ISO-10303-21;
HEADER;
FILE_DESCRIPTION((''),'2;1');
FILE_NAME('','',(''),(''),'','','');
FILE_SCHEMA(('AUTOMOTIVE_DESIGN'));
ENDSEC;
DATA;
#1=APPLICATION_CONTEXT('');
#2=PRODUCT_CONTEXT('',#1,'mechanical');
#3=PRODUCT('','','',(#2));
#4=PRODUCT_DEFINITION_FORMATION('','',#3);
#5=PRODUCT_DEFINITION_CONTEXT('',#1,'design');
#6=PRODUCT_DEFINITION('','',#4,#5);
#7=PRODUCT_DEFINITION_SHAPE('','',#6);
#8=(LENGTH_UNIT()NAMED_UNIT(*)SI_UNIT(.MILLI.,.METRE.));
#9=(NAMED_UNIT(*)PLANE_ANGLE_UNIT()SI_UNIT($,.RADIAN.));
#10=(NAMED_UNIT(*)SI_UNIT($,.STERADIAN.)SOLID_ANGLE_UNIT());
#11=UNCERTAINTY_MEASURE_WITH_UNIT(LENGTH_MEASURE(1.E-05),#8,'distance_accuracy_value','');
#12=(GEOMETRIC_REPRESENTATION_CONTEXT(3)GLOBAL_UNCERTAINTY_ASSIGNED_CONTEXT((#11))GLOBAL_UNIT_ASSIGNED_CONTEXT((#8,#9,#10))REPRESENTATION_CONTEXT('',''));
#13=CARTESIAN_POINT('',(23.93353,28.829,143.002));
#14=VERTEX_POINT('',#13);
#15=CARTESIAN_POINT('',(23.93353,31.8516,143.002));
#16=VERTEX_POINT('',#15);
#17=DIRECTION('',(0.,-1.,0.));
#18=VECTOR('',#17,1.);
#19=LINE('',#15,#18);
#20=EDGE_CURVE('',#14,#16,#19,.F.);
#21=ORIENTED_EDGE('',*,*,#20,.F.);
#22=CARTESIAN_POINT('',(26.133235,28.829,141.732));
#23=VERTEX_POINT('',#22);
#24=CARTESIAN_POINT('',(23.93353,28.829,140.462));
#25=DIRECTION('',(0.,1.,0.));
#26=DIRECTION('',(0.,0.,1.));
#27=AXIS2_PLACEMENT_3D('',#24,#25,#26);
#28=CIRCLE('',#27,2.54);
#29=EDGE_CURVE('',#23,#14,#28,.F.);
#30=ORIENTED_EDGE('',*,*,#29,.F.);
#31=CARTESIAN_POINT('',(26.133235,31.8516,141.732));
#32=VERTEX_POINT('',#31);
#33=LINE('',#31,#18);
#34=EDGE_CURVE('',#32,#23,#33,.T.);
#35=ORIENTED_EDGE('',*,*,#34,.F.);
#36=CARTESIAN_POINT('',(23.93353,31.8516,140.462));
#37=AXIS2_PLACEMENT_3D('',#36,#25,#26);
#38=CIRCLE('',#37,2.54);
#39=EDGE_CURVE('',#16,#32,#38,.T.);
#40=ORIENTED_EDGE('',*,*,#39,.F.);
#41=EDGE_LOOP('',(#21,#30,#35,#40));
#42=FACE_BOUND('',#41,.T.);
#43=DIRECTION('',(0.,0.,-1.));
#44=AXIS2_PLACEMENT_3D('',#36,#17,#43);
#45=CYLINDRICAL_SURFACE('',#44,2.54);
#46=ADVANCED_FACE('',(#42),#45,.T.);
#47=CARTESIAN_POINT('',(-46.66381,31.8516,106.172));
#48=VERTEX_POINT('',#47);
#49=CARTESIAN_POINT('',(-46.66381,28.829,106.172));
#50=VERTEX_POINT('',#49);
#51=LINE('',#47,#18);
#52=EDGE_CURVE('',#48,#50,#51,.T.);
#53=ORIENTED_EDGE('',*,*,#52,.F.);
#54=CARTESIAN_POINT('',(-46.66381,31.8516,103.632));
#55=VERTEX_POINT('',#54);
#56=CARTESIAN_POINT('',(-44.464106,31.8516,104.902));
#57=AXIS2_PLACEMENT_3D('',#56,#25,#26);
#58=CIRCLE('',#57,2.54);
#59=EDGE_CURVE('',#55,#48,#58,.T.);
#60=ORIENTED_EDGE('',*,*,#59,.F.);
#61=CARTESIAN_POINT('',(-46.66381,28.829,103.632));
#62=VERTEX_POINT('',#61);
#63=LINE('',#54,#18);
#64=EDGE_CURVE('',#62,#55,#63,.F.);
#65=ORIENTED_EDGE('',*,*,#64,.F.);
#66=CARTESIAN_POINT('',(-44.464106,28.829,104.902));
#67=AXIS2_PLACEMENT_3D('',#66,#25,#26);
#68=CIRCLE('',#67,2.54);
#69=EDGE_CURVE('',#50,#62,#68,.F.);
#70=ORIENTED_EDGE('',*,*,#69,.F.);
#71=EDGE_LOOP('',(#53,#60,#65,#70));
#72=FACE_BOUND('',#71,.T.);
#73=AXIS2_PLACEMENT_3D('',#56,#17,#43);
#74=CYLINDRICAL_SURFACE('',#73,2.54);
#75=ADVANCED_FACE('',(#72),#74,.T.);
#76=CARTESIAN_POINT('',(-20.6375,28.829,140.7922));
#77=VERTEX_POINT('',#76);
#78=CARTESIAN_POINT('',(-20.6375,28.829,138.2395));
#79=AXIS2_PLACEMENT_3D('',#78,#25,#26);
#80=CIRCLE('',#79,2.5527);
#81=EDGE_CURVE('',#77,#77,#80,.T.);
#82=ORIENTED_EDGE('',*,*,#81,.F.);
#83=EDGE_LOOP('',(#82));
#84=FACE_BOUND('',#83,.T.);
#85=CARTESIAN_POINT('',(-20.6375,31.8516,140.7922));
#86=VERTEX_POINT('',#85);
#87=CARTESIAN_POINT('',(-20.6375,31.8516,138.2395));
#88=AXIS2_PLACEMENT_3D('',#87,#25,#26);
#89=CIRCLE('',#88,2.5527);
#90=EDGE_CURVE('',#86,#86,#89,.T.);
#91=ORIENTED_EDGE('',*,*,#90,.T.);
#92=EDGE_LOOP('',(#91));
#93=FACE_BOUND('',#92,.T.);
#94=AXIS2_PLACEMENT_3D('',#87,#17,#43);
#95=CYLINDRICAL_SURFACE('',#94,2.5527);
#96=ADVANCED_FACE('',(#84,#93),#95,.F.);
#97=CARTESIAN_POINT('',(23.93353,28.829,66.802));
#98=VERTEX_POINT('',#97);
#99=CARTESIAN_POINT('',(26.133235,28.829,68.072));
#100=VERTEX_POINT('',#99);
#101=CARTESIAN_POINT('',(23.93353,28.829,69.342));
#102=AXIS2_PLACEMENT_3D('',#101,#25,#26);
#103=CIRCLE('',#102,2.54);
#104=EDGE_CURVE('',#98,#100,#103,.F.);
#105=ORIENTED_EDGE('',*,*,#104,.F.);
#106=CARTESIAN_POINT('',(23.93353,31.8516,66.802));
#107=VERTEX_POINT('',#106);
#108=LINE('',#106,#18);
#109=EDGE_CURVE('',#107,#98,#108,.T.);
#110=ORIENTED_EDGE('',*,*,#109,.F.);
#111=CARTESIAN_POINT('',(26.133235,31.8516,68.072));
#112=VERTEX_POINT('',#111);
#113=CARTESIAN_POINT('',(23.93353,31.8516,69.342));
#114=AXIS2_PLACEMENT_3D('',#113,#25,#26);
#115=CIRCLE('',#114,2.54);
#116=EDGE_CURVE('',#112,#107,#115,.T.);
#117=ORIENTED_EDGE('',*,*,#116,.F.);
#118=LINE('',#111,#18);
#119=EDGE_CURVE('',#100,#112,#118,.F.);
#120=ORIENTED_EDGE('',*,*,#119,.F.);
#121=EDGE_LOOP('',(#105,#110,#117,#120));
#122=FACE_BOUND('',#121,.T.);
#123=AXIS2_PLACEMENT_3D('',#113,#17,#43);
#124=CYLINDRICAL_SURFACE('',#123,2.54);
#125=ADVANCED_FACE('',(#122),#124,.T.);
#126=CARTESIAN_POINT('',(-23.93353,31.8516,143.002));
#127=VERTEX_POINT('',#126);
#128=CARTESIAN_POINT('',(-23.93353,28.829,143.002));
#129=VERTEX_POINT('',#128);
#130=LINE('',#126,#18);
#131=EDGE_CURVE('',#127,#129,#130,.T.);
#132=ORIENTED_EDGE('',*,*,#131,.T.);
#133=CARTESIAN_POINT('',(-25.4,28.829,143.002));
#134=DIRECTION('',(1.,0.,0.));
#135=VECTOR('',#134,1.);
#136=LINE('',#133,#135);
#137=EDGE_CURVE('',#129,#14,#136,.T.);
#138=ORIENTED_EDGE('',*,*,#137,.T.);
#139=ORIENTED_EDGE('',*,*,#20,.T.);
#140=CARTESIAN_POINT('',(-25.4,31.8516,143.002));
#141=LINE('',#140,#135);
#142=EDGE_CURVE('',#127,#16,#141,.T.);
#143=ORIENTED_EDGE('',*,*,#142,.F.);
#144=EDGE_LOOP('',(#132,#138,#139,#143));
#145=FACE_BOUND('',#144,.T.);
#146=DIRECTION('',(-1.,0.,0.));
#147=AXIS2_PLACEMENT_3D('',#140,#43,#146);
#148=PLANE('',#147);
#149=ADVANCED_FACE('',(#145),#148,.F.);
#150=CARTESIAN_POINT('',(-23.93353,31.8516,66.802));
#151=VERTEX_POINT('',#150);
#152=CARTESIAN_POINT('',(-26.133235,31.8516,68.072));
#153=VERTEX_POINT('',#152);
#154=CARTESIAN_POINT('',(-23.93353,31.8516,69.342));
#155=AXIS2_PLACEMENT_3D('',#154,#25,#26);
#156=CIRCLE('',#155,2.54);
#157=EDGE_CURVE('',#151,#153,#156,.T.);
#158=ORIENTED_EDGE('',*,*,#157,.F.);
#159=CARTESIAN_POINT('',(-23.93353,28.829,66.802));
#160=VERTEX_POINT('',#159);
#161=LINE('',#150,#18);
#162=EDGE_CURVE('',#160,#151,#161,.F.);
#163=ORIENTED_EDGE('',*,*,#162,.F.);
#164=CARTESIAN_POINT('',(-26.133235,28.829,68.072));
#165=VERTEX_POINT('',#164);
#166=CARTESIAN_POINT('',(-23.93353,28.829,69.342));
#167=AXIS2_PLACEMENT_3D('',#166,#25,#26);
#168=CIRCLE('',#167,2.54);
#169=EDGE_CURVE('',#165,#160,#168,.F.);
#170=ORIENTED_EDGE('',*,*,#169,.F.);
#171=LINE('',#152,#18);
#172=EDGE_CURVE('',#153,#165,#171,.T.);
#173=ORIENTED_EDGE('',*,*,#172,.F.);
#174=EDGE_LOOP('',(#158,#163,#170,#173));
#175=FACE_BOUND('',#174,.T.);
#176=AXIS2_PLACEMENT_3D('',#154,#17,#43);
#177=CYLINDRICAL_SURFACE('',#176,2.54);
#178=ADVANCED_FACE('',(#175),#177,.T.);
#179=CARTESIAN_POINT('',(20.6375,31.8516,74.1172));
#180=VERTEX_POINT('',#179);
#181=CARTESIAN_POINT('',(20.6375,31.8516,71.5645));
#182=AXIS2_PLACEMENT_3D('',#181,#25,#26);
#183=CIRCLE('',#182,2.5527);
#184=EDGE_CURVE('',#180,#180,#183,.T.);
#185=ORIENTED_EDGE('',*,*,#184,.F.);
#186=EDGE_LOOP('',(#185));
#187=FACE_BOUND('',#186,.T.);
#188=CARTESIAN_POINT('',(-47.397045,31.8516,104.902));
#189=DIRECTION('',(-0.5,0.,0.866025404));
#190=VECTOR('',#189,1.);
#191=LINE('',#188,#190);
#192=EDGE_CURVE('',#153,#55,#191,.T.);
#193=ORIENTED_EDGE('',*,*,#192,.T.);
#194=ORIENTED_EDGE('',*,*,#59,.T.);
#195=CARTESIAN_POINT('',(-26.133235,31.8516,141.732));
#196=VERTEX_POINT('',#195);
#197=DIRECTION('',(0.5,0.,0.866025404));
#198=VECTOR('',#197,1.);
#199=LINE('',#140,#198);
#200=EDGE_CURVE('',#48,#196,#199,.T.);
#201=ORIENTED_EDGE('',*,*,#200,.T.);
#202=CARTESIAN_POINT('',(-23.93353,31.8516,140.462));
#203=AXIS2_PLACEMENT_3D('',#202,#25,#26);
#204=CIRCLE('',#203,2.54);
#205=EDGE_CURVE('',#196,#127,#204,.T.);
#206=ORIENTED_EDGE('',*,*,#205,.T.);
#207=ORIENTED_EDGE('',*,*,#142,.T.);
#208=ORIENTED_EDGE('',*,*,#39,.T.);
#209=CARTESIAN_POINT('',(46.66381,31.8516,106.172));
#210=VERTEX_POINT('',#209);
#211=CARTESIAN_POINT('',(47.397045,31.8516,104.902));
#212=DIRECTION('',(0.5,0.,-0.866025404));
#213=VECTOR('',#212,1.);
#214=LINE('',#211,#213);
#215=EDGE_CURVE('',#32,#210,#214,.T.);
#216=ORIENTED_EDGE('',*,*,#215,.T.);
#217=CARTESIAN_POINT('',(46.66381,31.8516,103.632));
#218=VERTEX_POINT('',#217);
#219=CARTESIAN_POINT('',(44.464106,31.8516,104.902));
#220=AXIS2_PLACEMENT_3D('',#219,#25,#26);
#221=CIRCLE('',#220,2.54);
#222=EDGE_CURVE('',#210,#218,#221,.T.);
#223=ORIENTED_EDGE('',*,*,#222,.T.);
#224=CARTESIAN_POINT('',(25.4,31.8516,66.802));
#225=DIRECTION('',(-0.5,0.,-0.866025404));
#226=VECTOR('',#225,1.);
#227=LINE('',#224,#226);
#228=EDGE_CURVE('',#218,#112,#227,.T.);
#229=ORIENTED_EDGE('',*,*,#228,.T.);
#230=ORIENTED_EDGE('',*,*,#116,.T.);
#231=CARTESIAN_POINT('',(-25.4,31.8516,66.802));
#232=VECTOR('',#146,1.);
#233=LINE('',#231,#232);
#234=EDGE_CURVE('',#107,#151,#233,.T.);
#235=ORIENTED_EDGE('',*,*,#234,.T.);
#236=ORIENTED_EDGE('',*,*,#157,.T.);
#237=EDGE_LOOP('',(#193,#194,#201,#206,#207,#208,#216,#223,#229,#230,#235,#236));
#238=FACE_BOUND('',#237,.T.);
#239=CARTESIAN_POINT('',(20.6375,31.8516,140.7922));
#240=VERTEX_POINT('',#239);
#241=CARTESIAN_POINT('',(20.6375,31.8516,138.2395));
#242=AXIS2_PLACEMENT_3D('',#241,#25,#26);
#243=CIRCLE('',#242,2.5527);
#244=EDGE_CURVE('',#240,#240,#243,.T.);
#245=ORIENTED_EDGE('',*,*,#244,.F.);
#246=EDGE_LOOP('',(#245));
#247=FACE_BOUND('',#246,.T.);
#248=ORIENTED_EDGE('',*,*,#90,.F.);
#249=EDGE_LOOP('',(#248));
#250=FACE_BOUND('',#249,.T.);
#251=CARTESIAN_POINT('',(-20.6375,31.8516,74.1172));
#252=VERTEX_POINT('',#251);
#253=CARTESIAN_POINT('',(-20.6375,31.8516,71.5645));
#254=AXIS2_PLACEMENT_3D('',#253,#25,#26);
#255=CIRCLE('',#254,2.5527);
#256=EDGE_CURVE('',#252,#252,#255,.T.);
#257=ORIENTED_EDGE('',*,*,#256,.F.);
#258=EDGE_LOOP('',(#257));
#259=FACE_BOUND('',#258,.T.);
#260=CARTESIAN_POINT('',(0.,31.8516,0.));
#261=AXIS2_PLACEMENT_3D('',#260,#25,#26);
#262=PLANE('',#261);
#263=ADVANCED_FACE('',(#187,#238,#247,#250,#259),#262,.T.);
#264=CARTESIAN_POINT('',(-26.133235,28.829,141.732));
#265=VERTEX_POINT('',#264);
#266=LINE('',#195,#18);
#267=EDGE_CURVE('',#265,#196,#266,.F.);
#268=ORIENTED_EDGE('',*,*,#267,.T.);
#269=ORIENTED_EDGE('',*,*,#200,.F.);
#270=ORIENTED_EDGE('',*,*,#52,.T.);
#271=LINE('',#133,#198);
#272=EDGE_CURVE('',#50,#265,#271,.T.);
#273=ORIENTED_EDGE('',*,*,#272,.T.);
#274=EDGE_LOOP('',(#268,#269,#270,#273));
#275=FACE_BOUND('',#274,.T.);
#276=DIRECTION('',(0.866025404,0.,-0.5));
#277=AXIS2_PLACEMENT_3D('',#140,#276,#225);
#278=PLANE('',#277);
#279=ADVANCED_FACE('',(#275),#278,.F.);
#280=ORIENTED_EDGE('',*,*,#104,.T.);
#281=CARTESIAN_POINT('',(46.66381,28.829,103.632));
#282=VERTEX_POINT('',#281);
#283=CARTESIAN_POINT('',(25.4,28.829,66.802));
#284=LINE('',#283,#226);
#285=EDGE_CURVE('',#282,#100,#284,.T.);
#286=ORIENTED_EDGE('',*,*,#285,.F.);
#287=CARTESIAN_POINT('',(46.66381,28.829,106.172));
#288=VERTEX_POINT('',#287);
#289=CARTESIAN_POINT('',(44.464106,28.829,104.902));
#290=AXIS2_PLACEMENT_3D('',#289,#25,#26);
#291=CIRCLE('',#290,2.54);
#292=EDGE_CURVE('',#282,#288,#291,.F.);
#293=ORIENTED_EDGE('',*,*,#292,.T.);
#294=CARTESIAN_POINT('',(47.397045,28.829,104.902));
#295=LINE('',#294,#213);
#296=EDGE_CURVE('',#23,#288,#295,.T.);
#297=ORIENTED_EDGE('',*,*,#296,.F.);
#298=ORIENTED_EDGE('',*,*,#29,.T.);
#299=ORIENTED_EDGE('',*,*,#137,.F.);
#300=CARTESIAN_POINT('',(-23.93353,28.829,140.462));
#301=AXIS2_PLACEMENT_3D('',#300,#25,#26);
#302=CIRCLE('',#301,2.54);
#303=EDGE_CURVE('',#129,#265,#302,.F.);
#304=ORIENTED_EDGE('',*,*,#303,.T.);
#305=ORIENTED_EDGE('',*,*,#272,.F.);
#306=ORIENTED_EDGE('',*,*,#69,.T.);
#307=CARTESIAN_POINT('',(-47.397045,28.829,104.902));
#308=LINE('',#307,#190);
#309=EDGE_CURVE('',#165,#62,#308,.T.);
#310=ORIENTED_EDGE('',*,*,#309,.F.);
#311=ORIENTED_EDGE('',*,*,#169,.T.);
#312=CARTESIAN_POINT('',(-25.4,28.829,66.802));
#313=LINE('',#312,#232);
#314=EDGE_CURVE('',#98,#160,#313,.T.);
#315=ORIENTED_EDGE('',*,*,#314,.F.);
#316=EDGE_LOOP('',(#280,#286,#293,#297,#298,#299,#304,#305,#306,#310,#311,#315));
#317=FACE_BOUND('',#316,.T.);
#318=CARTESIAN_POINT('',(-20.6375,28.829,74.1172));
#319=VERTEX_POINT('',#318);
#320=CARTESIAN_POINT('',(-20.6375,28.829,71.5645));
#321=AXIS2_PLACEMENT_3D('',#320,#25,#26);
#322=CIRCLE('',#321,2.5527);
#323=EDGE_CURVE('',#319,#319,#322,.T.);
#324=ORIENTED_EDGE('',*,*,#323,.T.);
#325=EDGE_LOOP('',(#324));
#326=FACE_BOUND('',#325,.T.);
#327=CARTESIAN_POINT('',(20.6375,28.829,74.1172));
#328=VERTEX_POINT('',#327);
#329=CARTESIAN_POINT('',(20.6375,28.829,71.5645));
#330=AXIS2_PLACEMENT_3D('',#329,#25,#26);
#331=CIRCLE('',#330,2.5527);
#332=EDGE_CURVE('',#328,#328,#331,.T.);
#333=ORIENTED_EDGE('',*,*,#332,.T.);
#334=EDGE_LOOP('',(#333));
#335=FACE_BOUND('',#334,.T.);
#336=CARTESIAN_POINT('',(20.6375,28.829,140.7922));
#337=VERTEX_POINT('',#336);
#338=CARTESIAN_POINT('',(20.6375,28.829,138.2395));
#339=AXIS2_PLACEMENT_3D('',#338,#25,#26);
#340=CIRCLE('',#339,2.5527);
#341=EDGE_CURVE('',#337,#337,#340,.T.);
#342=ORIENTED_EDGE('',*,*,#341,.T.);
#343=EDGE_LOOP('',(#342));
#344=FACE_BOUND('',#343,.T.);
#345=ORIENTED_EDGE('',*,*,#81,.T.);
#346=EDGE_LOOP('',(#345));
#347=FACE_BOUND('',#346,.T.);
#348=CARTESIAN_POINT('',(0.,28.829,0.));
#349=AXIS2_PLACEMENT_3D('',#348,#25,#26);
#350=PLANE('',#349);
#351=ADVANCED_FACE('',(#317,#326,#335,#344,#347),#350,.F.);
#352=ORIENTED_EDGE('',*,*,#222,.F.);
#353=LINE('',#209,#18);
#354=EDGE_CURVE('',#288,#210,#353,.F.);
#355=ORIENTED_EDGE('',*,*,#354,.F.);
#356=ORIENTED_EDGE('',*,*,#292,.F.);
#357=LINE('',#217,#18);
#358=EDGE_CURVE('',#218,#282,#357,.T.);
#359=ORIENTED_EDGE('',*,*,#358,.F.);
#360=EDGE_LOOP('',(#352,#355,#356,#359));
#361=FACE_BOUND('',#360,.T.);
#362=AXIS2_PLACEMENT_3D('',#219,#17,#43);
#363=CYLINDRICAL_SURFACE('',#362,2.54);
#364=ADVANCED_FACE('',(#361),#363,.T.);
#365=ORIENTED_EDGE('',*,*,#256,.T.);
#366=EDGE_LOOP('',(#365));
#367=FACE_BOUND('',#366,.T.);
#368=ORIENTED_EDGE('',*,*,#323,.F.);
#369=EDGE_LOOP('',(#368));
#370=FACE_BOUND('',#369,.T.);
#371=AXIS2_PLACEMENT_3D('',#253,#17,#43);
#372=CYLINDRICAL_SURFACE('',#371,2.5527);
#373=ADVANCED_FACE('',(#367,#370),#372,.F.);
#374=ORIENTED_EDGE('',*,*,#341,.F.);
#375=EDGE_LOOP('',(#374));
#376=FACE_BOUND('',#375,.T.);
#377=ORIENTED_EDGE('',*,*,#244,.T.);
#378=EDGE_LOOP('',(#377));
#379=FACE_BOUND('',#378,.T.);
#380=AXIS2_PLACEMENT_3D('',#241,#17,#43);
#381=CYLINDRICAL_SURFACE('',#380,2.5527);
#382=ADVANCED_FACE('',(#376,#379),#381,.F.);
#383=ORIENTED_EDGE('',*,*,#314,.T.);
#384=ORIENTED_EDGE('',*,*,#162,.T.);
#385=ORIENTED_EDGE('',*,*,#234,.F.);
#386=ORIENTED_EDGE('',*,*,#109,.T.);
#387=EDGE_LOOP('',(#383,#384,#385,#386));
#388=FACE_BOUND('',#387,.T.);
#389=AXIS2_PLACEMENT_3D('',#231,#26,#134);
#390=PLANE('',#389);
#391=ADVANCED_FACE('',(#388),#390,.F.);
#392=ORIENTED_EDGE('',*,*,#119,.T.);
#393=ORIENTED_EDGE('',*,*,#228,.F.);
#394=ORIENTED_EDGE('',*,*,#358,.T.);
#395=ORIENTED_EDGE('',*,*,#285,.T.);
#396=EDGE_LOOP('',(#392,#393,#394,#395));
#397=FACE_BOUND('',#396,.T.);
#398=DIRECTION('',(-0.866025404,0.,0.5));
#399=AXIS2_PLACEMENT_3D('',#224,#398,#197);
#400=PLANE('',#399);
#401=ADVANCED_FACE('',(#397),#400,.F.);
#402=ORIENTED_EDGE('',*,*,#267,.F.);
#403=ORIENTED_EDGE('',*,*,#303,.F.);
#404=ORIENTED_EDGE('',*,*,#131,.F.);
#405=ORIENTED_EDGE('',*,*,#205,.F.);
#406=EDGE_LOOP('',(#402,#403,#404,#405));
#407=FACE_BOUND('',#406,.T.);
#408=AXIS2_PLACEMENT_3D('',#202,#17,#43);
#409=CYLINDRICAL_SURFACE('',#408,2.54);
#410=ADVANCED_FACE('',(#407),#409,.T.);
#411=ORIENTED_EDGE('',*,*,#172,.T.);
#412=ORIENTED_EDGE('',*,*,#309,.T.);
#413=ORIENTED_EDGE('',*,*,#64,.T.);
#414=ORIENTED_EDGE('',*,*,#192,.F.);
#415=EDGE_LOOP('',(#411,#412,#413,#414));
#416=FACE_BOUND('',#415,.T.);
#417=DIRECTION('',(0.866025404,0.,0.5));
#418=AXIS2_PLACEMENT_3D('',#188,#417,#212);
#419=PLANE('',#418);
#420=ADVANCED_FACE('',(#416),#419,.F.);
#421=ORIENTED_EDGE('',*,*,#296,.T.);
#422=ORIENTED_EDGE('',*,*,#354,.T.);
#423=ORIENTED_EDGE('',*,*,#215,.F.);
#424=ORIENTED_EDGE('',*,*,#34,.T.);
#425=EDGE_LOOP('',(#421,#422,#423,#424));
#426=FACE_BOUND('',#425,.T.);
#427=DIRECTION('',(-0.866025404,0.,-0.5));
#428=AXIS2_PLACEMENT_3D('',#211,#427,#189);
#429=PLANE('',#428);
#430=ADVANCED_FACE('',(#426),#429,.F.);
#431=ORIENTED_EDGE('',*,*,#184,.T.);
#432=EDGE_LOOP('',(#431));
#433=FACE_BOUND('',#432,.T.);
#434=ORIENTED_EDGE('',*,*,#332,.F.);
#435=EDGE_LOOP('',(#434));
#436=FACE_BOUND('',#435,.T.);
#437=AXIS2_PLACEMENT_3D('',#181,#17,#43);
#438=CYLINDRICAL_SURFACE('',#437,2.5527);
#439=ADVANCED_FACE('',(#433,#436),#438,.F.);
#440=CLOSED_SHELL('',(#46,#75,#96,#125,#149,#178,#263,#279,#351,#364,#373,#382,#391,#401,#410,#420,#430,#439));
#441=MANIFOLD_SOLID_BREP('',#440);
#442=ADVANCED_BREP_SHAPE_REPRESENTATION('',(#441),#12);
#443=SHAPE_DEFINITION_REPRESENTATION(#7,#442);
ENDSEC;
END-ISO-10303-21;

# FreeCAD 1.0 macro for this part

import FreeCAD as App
import Part
import Sketcher
from FreeCAD import Vector
Q = App.Units.Quantity


def edges_at(feature, points):
    """Names of the edges that pass closest to the given points."""
    edges = feature.Shape.Edges
    near = lambda p: min(range(len(edges)), key=lambda i: edges[i].distToShape(Part.Vertex(*p))[0])
    return sorted({f"Edge{near(p) + 1}" for p in points})


def add_polygon(sketch, points):
    """Adds a closed chain of lines whose ends are joined by coincident constraints."""
    first, n = sketch.GeometryCount, len(points)
    for a, b in zip(points, points[1:] + points[:1]):
        sketch.addGeometry(Part.LineSegment(App.Vector(*a, 0), App.Vector(*b, 0)), False)
    for i in range(n):
        sketch.addConstraint(Sketcher.Constraint("Coincident", first + i, 2, first + (i + 1) % n, 1))

doc = App.newDocument("Part")
body = doc.addObject("PartDesign::Body", "Body")

# Sketch on XZ plane
sketch1 = body.newObject("Sketcher::SketchObject", "Sketch")
sketch1.AttachmentSupport = (doc.getObject("XZ_Plane"), [""])
sketch1.MapMode = "FlatFace"
sketch1.AttachmentOffset = App.Placement(Vector(0, 0, -1.135 * 25.4), App.Rotation())
add_polygon(sketch1, [(25.4, 66.802), (-25.4, 66.802), (-47.397045, 104.902), (-25.4, 143.002), (25.4, 143.002), (47.397045, 104.902)])  # lines 0-5
sketch1.addGeometry(Part.Circle(Vector(20.6375, 138.2395, 0), Vector(0, 0, 1), 2.5527), False)  # 6
sketch1.addGeometry(Part.Circle(Vector(-20.6375, 138.2395, 0), Vector(0, 0, 1), 2.5527), False)  # 7
sketch1.addGeometry(Part.Circle(Vector(20.6375, 71.5645, 0), Vector(0, 0, 1), 2.5527), False)  # 8
sketch1.addGeometry(Part.Circle(Vector(-20.6375, 71.5645, 0), Vector(0, 0, 1), 2.5527), False)  # 9
sketch1.addConstraint([
    Sketcher.Constraint("Horizontal", 0),
    Sketcher.Constraint("Horizontal", 3),
    Sketcher.Constraint("Equal", 6, 7),
    Sketcher.Constraint("Equal", 7, 8),
    Sketcher.Constraint("Equal", 8, 9),
    Sketcher.Constraint("Symmetric", 6, 3, 7, 3, -2),
    Sketcher.Constraint("Symmetric", 8, 3, 9, 3, -2),
    Sketcher.Constraint("Symmetric", 1, 2, 4, 2, -2),
    Sketcher.Constraint("Parallel", 1, 4),
    Sketcher.Constraint("Parallel", 2, 5),
    Sketcher.Constraint("Vertical", 6, 3, 8, 3),
    Sketcher.Constraint("Vertical", 0, 2, 2, 2),
    Sketcher.Constraint("Vertical", 3, 2, 5, 2),
    Sketcher.Constraint("DistanceX", 0, 2, 0, 1, Q("2 in")),
    Sketcher.Constraint("Diameter", 6, Q("0.201 in")),
    Sketcher.Constraint("Angle", 1, Q("120 deg")),
    Sketcher.Constraint("DistanceY", 0, 2, 2, 2, Q("3 in")),
    Sketcher.Constraint("DistanceY", -1, 1, 0, 2, Q("2.63 in")),
    Sketcher.Constraint("DistanceX", -1, 1, 6, 3, Q("0.8125 in")),
    Sketcher.Constraint("DistanceY", 8, 3, 6, 3, Q("2.625 in")),
    Sketcher.Constraint("DistanceY", 0, 2, 9, 3, Q("0.1875 in")),
])
pad1 = body.newObject("PartDesign::Pad", "Pad")
pad1.Profile = sketch1
pad1.Length = Q("0.119 in")
pad1.Reversed = True
doc.recompute()

fillet = body.newObject("PartDesign::Fillet", "Fillet")
fillet.Base = (pad1, edges_at(pad1, [
    (25.4, 30.34, 143.002),
    (-25.4, 30.34, 143.002),
    (-47.397, 30.34, 104.902),
    (-25.4, 30.34, 66.802),
    (25.4, 30.34, 66.802),
    (47.397, 30.34, 104.902),
]))
fillet.Radius = Q("0.1 in")

doc.recompute()
